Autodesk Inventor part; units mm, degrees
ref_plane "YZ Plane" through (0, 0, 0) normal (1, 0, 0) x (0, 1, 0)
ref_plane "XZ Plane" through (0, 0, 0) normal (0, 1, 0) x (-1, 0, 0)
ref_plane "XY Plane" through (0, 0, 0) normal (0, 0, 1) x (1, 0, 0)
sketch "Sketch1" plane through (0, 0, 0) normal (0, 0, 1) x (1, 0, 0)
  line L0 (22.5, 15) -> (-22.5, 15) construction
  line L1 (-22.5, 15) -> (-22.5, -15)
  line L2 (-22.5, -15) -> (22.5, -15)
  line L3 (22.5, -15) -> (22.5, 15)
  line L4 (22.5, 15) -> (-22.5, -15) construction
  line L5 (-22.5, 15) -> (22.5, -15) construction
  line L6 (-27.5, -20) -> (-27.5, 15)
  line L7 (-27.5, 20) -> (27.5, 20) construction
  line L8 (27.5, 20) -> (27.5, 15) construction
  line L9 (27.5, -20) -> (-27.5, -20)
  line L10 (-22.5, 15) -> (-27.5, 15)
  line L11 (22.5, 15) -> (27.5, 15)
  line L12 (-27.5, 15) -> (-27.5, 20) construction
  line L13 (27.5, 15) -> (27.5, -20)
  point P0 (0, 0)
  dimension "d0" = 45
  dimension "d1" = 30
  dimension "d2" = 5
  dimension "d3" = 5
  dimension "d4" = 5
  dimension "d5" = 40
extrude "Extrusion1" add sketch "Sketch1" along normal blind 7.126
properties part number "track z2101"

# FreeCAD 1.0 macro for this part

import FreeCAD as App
import Part
import Sketcher

V = App.Vector


def add_polygon(sketch, points):
    """Adds a closed chain of lines whose ends are joined by coincident constraints."""
    first, n = sketch.GeometryCount, len(points)
    for a, b in zip(points, points[1:] + points[:1]):
        sketch.addGeometry(Part.LineSegment(App.Vector(*a, 0), App.Vector(*b, 0)), False)
    for i in range(n):
        sketch.addConstraint(Sketcher.Constraint("Coincident", first + i, 2, first + (i + 1) % n, 1))

doc = App.newDocument("Part")
body = doc.addObject("PartDesign::Body", "Body")

# Sketch on XY plane
sketch1 = doc.addObject("Sketcher::SketchObject", "Sketch")
body.addObject(sketch1)
sketch1.AttachmentSupport = (doc.XY_Plane, [""])
sketch1.MapMode = "FlatFace"
add_polygon(sketch1, [(-22, -15), (-22, 15), (-28, 15), (-28, -20), (28, -20), (28, 15), (22, 15), (22, -15)])  # lines 0-7
sketch1.addConstraint(Sketcher.Constraint("Vertical", 0))
sketch1.addConstraint(Sketcher.Constraint("Horizontal", 1))
sketch1.addConstraint(Sketcher.Constraint("Vertical", 2))
sketch1.addConstraint(Sketcher.Constraint("Horizontal", 3))
sketch1.addConstraint(Sketcher.Constraint("Vertical", 4))
sketch1.addConstraint(Sketcher.Constraint("Horizontal", 5))
sketch1.addConstraint(Sketcher.Constraint("Vertical", 6))
sketch1.addConstraint(Sketcher.Constraint("Horizontal", 7))
sketch1.addConstraint(Sketcher.Constraint("Symmetric", 0, 2, 6, 2, -1, 1))
sketch1.addConstraint(Sketcher.Constraint("Symmetric", 1, 2, 4, 2, -2))
sketch1.addConstraint(Sketcher.Constraint("DistanceX", 1, 2, 1, 1, 5.0))
sketch1.addConstraint(Sketcher.Constraint("DistanceX", 7, 2, 7, 1, 45.0))
sketch1.addConstraint(Sketcher.Constraint("DistanceY", 0, 1, 0, 2, 30.0))
sketch1.addConstraint(Sketcher.Constraint("DistanceY", 3, 2, 6, 2, 5.0))
pad1 = doc.addObject("PartDesign::Pad", "Pad")
body.addObject(pad1)
pad1.Profile = sketch1
pad1.Length = 7.126

doc.recompute()
